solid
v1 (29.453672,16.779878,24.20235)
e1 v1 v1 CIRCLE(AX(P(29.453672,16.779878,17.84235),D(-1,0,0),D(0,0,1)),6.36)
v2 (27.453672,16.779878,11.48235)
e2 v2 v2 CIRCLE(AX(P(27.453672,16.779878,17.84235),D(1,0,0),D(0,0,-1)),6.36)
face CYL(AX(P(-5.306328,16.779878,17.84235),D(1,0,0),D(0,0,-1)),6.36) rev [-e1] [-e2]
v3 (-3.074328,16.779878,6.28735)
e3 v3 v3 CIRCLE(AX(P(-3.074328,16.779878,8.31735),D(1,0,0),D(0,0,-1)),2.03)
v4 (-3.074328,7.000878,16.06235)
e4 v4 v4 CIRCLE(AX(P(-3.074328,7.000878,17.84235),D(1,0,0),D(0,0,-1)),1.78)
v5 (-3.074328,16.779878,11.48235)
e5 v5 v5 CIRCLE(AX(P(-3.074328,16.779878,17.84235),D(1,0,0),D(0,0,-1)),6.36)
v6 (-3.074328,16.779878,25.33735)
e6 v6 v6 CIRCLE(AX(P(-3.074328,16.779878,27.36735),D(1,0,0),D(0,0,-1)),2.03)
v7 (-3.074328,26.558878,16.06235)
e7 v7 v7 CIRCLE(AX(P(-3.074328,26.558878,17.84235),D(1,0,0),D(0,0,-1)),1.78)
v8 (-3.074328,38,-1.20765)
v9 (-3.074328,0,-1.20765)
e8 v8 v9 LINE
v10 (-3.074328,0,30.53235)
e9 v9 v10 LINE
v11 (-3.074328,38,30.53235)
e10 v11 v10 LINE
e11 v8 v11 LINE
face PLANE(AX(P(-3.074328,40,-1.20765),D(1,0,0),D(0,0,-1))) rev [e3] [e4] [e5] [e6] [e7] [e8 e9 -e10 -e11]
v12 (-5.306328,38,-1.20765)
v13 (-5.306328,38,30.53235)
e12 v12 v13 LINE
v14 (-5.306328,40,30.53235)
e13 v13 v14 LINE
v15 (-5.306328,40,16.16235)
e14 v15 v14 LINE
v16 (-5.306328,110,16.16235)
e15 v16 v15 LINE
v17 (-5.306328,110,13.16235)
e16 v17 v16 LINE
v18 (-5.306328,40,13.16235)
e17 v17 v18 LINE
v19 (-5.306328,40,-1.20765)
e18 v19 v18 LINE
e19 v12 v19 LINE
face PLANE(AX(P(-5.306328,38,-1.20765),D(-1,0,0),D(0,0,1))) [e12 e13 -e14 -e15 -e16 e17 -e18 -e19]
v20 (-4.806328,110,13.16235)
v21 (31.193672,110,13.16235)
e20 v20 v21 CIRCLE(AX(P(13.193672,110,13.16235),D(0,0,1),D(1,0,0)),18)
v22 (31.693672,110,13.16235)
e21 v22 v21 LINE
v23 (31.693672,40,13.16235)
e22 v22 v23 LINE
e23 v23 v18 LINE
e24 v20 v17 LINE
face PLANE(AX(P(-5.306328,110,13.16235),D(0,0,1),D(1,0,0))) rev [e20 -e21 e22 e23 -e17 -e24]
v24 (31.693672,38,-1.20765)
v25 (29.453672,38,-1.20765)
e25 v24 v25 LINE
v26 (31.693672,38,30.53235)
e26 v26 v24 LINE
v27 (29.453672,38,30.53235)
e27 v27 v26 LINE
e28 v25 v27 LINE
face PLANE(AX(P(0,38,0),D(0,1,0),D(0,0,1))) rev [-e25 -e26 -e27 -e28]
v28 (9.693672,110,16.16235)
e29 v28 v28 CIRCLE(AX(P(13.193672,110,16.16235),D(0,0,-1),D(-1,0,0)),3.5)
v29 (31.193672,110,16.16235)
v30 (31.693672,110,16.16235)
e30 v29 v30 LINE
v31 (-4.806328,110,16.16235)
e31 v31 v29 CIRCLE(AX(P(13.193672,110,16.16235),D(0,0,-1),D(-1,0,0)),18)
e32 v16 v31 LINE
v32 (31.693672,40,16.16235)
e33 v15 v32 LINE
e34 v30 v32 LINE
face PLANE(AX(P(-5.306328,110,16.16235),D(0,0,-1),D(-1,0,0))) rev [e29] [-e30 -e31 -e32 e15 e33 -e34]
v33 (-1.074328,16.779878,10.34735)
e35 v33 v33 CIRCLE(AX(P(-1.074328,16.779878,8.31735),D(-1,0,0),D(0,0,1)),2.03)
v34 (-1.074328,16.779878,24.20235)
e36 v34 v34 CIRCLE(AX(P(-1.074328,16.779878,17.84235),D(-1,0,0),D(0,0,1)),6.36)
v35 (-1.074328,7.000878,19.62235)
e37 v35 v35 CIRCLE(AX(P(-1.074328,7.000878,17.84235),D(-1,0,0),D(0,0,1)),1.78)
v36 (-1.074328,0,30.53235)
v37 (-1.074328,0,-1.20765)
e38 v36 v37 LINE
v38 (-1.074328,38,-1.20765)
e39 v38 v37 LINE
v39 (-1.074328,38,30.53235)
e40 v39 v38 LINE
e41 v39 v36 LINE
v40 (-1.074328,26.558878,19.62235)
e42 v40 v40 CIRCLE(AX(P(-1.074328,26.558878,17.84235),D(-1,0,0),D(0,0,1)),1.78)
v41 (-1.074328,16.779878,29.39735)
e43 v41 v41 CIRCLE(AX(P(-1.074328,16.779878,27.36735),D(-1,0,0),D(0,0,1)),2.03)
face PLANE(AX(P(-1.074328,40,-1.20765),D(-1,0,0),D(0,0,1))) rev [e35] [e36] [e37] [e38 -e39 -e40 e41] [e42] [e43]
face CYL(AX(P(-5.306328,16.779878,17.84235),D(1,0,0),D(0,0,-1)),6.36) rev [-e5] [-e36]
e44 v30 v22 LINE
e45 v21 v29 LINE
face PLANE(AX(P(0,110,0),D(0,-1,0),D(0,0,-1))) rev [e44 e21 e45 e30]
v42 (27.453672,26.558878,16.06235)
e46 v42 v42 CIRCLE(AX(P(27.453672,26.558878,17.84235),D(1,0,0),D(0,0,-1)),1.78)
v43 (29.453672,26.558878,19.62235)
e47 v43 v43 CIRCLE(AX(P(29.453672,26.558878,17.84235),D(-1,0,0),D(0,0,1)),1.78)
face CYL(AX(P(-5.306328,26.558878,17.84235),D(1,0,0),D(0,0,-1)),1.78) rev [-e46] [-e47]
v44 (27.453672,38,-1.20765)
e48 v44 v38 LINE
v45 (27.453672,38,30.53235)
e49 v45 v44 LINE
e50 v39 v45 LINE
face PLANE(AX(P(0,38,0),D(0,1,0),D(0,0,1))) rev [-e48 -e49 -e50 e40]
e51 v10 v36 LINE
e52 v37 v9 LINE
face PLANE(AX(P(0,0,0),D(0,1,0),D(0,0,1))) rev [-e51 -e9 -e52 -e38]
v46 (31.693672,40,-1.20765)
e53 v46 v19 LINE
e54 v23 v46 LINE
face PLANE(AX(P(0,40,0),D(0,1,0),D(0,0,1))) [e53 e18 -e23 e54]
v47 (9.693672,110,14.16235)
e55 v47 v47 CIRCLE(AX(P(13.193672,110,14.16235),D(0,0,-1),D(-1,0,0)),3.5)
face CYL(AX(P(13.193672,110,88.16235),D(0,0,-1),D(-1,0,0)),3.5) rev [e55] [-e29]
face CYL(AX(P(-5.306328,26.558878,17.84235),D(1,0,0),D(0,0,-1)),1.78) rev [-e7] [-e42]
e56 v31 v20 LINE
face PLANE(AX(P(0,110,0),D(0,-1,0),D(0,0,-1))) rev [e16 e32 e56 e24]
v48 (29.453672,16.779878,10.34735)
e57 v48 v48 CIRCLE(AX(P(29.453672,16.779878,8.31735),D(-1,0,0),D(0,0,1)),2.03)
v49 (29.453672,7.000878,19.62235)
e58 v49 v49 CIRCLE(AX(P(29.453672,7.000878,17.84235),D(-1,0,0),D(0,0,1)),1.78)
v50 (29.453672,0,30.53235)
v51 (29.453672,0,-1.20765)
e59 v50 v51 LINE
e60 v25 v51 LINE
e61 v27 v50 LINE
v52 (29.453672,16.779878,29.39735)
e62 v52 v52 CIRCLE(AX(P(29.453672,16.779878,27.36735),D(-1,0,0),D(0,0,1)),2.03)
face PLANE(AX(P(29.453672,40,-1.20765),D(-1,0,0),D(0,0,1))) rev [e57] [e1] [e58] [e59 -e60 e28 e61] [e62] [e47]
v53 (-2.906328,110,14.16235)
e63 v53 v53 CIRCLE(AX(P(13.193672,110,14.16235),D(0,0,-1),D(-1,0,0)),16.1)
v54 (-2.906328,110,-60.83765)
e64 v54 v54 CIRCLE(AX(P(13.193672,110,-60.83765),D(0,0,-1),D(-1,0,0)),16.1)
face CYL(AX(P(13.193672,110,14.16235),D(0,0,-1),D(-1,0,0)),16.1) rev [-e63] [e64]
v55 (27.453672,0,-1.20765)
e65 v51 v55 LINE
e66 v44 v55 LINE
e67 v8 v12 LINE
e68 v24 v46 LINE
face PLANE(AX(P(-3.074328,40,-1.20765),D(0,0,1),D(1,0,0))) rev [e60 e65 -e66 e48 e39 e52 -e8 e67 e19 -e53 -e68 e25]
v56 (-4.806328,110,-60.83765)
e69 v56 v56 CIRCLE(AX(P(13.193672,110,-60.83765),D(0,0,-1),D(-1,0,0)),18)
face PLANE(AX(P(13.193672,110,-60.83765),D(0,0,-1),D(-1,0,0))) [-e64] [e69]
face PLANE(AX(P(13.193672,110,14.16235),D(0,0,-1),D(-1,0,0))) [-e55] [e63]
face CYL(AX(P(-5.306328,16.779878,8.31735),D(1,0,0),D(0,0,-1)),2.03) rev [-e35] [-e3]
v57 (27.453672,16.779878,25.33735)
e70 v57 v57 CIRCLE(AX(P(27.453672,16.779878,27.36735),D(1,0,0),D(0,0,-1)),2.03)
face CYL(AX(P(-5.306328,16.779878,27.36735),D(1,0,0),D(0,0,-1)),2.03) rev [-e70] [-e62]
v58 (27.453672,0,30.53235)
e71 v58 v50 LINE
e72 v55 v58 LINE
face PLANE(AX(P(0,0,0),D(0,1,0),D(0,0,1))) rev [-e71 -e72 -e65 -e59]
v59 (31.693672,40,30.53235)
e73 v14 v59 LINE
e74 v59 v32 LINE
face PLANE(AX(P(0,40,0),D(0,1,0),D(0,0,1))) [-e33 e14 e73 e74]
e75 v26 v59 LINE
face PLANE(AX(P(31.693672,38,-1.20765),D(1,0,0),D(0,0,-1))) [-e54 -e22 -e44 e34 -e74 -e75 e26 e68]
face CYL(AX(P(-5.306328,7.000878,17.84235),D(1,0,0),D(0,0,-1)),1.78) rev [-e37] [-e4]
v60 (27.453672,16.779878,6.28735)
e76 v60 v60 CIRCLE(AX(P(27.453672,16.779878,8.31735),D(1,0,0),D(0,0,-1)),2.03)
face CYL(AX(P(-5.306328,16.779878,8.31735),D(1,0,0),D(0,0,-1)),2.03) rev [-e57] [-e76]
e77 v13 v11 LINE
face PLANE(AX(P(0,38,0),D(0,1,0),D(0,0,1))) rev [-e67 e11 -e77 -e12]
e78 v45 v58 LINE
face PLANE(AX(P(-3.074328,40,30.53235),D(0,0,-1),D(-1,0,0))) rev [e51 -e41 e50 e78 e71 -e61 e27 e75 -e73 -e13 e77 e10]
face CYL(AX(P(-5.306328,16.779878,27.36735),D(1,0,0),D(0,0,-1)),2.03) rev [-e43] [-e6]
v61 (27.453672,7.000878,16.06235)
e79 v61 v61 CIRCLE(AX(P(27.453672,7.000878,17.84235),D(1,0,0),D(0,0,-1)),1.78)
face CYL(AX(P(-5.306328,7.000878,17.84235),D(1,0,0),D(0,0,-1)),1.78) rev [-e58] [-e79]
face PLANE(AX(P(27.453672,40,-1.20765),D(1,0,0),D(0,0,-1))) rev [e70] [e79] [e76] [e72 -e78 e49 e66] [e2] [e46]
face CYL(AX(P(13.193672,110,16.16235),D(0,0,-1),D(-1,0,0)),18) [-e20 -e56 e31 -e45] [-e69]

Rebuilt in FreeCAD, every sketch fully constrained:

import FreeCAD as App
import Part
import Sketcher

V = App.Vector
Q = App.Units.Quantity

doc = App.newDocument("Part")
body = doc.addObject("PartDesign::Body", "Body")

sketch1 = body.newObject("Sketcher::SketchObject", "Sketch")
sketch1.AttachmentSupport = (doc.getObject("XZ_Plane"), [""])
sketch1.MapMode = "FlatFace"
sketch1.addGeometry([
    Part.LineSegment(V(-3.1, -1.2, 0), V(-3.1, 30.5, 0)),
    Part.LineSegment(V(-3.1, 30.5, 0), V(-1.1, 30.5, 0)),
    Part.LineSegment(V(-1.1, 30.5, 0), V(-1.1, -1.2, 0)),
    Part.LineSegment(V(-1.1, -1.2, 0), V(-3.1, -1.2, 0)),
], False)
sketch1.addConstraint([
    Sketcher.Constraint("Coincident", 0, 2, 1, 1),
    Sketcher.Constraint("Coincident", 1, 2, 2, 1),
    Sketcher.Constraint("Coincident", 2, 2, 3, 1),
    Sketcher.Constraint("Coincident", 3, 2, 0, 1),
    Sketcher.Constraint("Vertical", 0),
    Sketcher.Constraint("Horizontal", 1),
    Sketcher.Constraint("Vertical", 2),
    Sketcher.Constraint("Horizontal", 3),
    Sketcher.Constraint("DistanceX", 1, 1, 1, 2, Q("2 mm")),
    Sketcher.Constraint("DistanceY", 0, 1, 0, 2, Q("31.74 mm")),
    Sketcher.Constraint("DistanceY", -1, 1, 0, 2, Q("30.53235 mm")),
    Sketcher.Constraint("DistanceX", 0, 2, -1, 1, Q("3.074328 mm")),
])
pad1 = body.newObject("PartDesign::Pad", "Pad")
pad1.Profile = sketch1
pad1.Length = 40
pad1.Reversed = True
body2 = doc.addObject("PartDesign::Body", "Body001")

sketch2 = body2.newObject("Sketcher::SketchObject", "Sketch001")
sketch2.AttachmentSupport = (doc.getObject("XZ_Plane001"), [""])
sketch2.MapMode = "FlatFace"
sketch2.addGeometry([
    Part.LineSegment(V(27.5, -1.2, 0), V(27.5, 30.5, 0)),
    Part.LineSegment(V(27.5, 30.5, 0), V(29.5, 30.5, 0)),
    Part.LineSegment(V(29.5, 30.5, 0), V(29.5, -1.2, 0)),
    Part.LineSegment(V(29.5, -1.2, 0), V(27.5, -1.2, 0)),
], False)
sketch2.addConstraint([
    Sketcher.Constraint("Coincident", 0, 2, 1, 1),
    Sketcher.Constraint("Coincident", 1, 2, 2, 1),
    Sketcher.Constraint("Coincident", 2, 2, 3, 1),
    Sketcher.Constraint("Coincident", 3, 2, 0, 1),
    Sketcher.Constraint("Vertical", 0),
    Sketcher.Constraint("Horizontal", 1),
    Sketcher.Constraint("Vertical", 2),
    Sketcher.Constraint("Horizontal", 3),
    Sketcher.Constraint("DistanceX", 1, 1, 1, 2, Q("2 mm")),
    Sketcher.Constraint("DistanceY", 0, 1, 0, 2, Q("31.74 mm")),
    Sketcher.Constraint("DistanceY", -1, 1, 0, 2, Q("30.53235 mm")),
    Sketcher.Constraint("DistanceX", -1, 1, 0, 2, Q("27.453672 mm")),
])
pad2 = body2.newObject("PartDesign::Pad", "Pad001")
pad2.Profile = sketch2
pad2.Length = 40
pad2.Reversed = True
body.AllowCompound = True
doc.recompute()

boolean = body.newObject("PartDesign::Boolean", "Boolean")
boolean.Type = "Fuse"
boolean.addObjects([body2])

sketch3 = body.newObject("Sketcher::SketchObject", "Sketch002")
sketch3.AttachmentSupport = (doc.getObject("XZ_Plane"), [""])
sketch3.MapMode = "FlatFace"
sketch3.AttachmentOffset = App.Placement(V(0, 0, -40), App.Rotation())
sketch3.addGeometry([
    Part.LineSegment(V(-5, -1, 0), V(-5, 31, 0)),
    Part.LineSegment(V(-5, 31, 0), V(32, 31, 0)),
    Part.LineSegment(V(32, 31, 0), V(32, -1, 0)),
    Part.LineSegment(V(32, -1, 0), V(-5, -1, 0)),
], False)
sketch3.addConstraint([
    Sketcher.Constraint("Coincident", 0, 2, 1, 1),
    Sketcher.Constraint("Coincident", 1, 2, 2, 1),
    Sketcher.Constraint("Coincident", 2, 2, 3, 1),
    Sketcher.Constraint("Coincident", 3, 2, 0, 1),
    Sketcher.Constraint("Vertical", 0),
    Sketcher.Constraint("Horizontal", 1),
    Sketcher.Constraint("Vertical", 2),
    Sketcher.Constraint("Horizontal", 3),
    Sketcher.Constraint("DistanceX", 1, 1, 1, 2, Q("37 mm")),
    Sketcher.Constraint("DistanceY", 0, 1, 0, 2, Q("31.74 mm")),
    Sketcher.Constraint("DistanceY", -1, 1, 0, 2, Q("30.53235 mm")),
    Sketcher.Constraint("DistanceX", 0, 2, -1, 1, Q("5.306328 mm")),
])
pad3 = body.newObject("PartDesign::Pad", "Pad002")
pad3.Profile = sketch3
pad3.Length = 2

sketch4 = body.newObject("Sketcher::SketchObject", "Sketch003")
sketch4.AttachmentSupport = (doc.getObject("XZ_Plane"), [""])
sketch4.MapMode = "FlatFace"
sketch4.AttachmentOffset = App.Placement(V(0, 0, -40), App.Rotation())
sketch4.addGeometry([
    Part.LineSegment(V(-5.3, 13.2, 0), V(-5.3, 16.2, 0)),
    Part.LineSegment(V(-5.3, 16.2, 0), V(31.7, 16.2, 0)),
    Part.LineSegment(V(31.7, 16.2, 0), V(31.7, 13.2, 0)),
    Part.LineSegment(V(31.7, 13.2, 0), V(-5.3, 13.2, 0)),
], False)
sketch4.addConstraint([
    Sketcher.Constraint("Coincident", 0, 2, 1, 1),
    Sketcher.Constraint("Coincident", 1, 2, 2, 1),
    Sketcher.Constraint("Coincident", 2, 2, 3, 1),
    Sketcher.Constraint("Coincident", 3, 2, 0, 1),
    Sketcher.Constraint("Vertical", 0),
    Sketcher.Constraint("Horizontal", 1),
    Sketcher.Constraint("Vertical", 2),
    Sketcher.Constraint("Horizontal", 3),
    Sketcher.Constraint("DistanceX", 1, 1, 1, 2, Q("37 mm")),
    Sketcher.Constraint("DistanceY", 0, 1, 0, 2, Q("3 mm")),
    Sketcher.Constraint("DistanceY", -1, 1, 0, 2, Q("16.16235 mm")),
    Sketcher.Constraint("DistanceX", 0, 2, -1, 1, Q("5.306328 mm")),
])
pad4 = body.newObject("PartDesign::Pad", "Pad003")
pad4.Profile = sketch4
pad4.Length = 70
pad4.Reversed = True

sketch5 = body.newObject("Sketcher::SketchObject", "Sketch004")
sketch5.AttachmentSupport = (doc.getObject("XY_Plane"), [""])
sketch5.MapMode = "FlatFace"
sketch5.AttachmentOffset = App.Placement(V(0, 0, 13.16235), App.Rotation())
sketch5.addGeometry(Part.Circle(V(13, 110, 0), V(0, 0, 1), 18), False)
sketch5.addConstraint([
    Sketcher.Constraint("Diameter", 0, Q("36 mm")),
    Sketcher.Constraint("DistanceY", -1, 1, 0, 3, Q("110 mm")),
    Sketcher.Constraint("DistanceX", -1, 1, 0, 3, Q("13.193672 mm")),
])
pad5 = body.newObject("PartDesign::Pad", "Pad004")
pad5.Profile = sketch5
pad5.Type = "TwoLengths"
pad5.Length = 74
pad5.Length2 = 3
pad5.Reversed = True

sketch6 = body.newObject("Sketcher::SketchObject", "Sketch005")
sketch6.AttachmentSupport = (doc.getObject("XY_Plane"), [""])
sketch6.MapMode = "FlatFace"
sketch6.AttachmentOffset = App.Placement(V(0, 0, -60.83765), App.Rotation())
sketch6.addGeometry(Part.Circle(V(13, 110, 0), V(0, 0, 1), 16), False)
sketch6.addConstraint([
    Sketcher.Constraint("Diameter", 0, Q("32.2 mm")),
    Sketcher.Constraint("DistanceY", -1, 1, 0, 3, Q("110 mm")),
    Sketcher.Constraint("DistanceX", -1, 1, 0, 3, Q("13.193672 mm")),
])
pocket1 = body.newObject("PartDesign::Pocket", "Pocket")
pocket1.Profile = sketch6
pocket1.Length = 75
pocket1.Reversed = True

sketch7 = body.newObject("Sketcher::SketchObject", "Sketch006")
sketch7.AttachmentSupport = (doc.getObject("XY_Plane"), [""])
sketch7.MapMode = "FlatFace"
sketch7.AttachmentOffset = App.Placement(V(0, 0, 14.16235), App.Rotation())
sketch7.addGeometry(Part.Circle(V(13.2, 110, 0), V(0, 0, 1), 3.5), False)
sketch7.addConstraint([
    Sketcher.Constraint("Diameter", 0, Q("7 mm")),
    Sketcher.Constraint("DistanceY", -1, 1, 0, 3, Q("110 mm")),
    Sketcher.Constraint("DistanceX", -1, 1, 0, 3, Q("13.193672 mm")),
])
pocket2 = body.newObject("PartDesign::Pocket", "Pocket001")
pocket2.Profile = sketch7
pocket2.Length = 74
pocket2.Reversed = True

sketch8 = body.newObject("Sketcher::SketchObject", "Sketch007")
sketch8.AttachmentSupport = (doc.getObject("YZ_Plane"), [""])
sketch8.MapMode = "FlatFace"
sketch8.AttachmentOffset = App.Placement(V(0, 0, 29.453672), App.Rotation())
sketch8.addGeometry([
    Part.Circle(V(16.8, 17.8, 0), V(0, 0, 1), 6.4),
    Part.Circle(V(26.6, 17.8, 0), V(0, 0, 1), 1.8),
    Part.Circle(V(7, 17.8, 0), V(0, 0, 1), 1.8),
    Part.Circle(V(16.8, 27.4, 0), V(0, 0, 1), 2),
    Part.Circle(V(16.8, 8.3, 0), V(0, 0, 1), 2),
], False)
sketch8.addConstraint([
    Sketcher.Constraint("Equal", 1, 2),
    Sketcher.Constraint("Equal", 3, 4),
    Sketcher.Constraint("Horizontal", 0, 3, 1, 3),
    Sketcher.Constraint("Horizontal", 1, 3, 2, 3),
    Sketcher.Constraint("Vertical", 0, 3, 3, 3),
    Sketcher.Constraint("Vertical", 3, 3, 4, 3),
    Sketcher.Constraint("Diameter", 0, Q("12.72 mm")),
    Sketcher.Constraint("Diameter", 1, Q("3.56 mm")),
    Sketcher.Constraint("Diameter", 3, Q("4.06 mm")),
    Sketcher.Constraint("DistanceY", 4, 3, 3, 3, Q("19.05 mm")),
    Sketcher.Constraint("DistanceX", 0, 3, 1, 3, Q("9.779 mm")),
    Sketcher.Constraint("DistanceX", 2, 3, 0, 3, Q("9.779 mm")),
    Sketcher.Constraint("DistanceY", 0, 3, 3, 3, Q("9.525 mm")),
    Sketcher.Constraint("DistanceX", -1, 1, 0, 3, Q("16.779878 mm")),
    Sketcher.Constraint("DistanceY", -1, 1, 0, 3, Q("17.84235 mm")),
])
pocket3 = body.newObject("PartDesign::Pocket", "Pocket002")
pocket3.Profile = sketch8
pocket3.Type = "ThroughAll"
pocket3.Midplane = True

doc.recompute()
